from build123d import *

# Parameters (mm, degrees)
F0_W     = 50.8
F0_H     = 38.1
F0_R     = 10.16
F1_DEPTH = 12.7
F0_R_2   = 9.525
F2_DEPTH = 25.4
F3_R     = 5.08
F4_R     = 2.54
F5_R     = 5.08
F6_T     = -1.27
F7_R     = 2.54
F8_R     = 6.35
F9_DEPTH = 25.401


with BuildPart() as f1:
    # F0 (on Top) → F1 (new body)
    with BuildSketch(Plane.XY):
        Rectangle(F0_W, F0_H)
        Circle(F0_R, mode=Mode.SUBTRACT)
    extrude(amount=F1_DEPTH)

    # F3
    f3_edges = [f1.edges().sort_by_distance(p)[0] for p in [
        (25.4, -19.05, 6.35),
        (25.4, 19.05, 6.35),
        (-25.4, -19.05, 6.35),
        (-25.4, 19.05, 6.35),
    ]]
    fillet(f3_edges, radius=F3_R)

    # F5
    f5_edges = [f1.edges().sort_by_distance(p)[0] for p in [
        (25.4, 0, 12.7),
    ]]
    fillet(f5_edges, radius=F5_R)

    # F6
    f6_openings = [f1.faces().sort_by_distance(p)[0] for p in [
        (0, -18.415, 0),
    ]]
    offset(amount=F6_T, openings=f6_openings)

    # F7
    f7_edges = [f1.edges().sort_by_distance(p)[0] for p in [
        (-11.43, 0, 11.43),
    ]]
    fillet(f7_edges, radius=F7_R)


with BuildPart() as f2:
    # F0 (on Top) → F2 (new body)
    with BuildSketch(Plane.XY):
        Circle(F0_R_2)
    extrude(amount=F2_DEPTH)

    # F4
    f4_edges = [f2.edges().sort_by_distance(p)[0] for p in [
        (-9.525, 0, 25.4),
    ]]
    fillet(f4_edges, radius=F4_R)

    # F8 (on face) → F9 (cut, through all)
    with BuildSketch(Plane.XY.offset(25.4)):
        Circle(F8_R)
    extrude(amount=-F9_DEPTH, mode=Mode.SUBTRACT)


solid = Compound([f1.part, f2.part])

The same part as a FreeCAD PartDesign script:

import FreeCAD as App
import Part
import Sketcher

V = App.Vector
Q = App.Units.Quantity


def edges_at(feature, points):
    """Names of the edges that pass closest to the given points."""
    edges = feature.Shape.Edges
    near = lambda p: min(range(len(edges)), key=lambda i: edges[i].distToShape(Part.Vertex(*p))[0])
    return sorted({f"Edge{near(p) + 1}" for p in points})


def faces_at(feature, points):
    """Names of the faces that lie closest to the given points."""
    faces = feature.Shape.Faces
    near = lambda p: min(range(len(faces)), key=lambda i: faces[i].distToShape(Part.Vertex(*p))[0])
    return sorted({f"Face{near(p) + 1}" for p in points})


def add_polygon(sketch, points):
    """Adds a closed chain of lines whose ends are joined by coincident constraints."""
    first, n = sketch.GeometryCount, len(points)
    for a, b in zip(points, points[1:] + points[:1]):
        sketch.addGeometry(Part.LineSegment(App.Vector(*a, 0), App.Vector(*b, 0)), False)
    for i in range(n):
        sketch.addConstraint(Sketcher.Constraint("Coincident", first + i, 2, first + (i + 1) % n, 1))

doc = App.newDocument("Part")
params = doc.addObject("Spreadsheet::Sheet", "Params")
for row, (alias, value) in enumerate([
    ("sketch1_diameter", "0.8 in"),
    ("sketch1_width", "2 in"),
    ("sketch1_height", "1.5 in"),
    ("pad1_length", "0.5 in"),
    ("fillet_radius", "0.2 in"),
    ("fillet2_radius", "0.2 in"),
    ("thickness_wall", "0.05 in"),
    ("fillet3_radius", "0.1 in"),
    ("sketch2_diameter", "0.75 in"),
    ("pad2_length", "1 in"),
    ("fillet4_radius", "0.1 in"),
    ("sketch3_diameter", "0.5 in"),
], start=1):
    params.set(f"A{row}", alias)
    params.set(f"B{row}", "=" + value)
    params.setAlias(f"B{row}", alias)

body = doc.addObject("PartDesign::Body", "Body")

# Sketch on XY plane
sketch1 = body.newObject("Sketcher::SketchObject", "Sketch")
sketch1.AttachmentSupport = (doc.getObject("XY_Plane"), [""])
sketch1.MapMode = "FlatFace"
add_polygon(sketch1, [(-25.4, 19.05), (-25.4, -19.05), (25.4, -19.05), (25.4, 19.05)])  # lines 0-3
sketch1.addGeometry(Part.Circle(V(0, 0, 0), V(0, 0, 1), 10.16), False)  # 4
sketch1.addConstraint([
    Sketcher.Constraint("Vertical", 0),
    Sketcher.Constraint("Horizontal", 1),
    Sketcher.Constraint("Vertical", 2),
    Sketcher.Constraint("Horizontal", 3),
    Sketcher.Constraint("Coincident", 4, 3, -1, 1),
    Sketcher.Constraint("Symmetric", 0, 2, 2, 2, -1, 1),
    Sketcher.Constraint("Diameter", 4, Q("0.8 in")),
    Sketcher.Constraint("DistanceX", 1, 1, 1, 2, Q("2 in")),
    Sketcher.Constraint("DistanceY", 0, 2, 0, 1, Q("1.5 in")),
])
sketch1.setExpression("Constraints[10]", "Params.sketch1_diameter")
sketch1.setExpression("Constraints[11]", "Params.sketch1_width")
sketch1.setExpression("Constraints[12]", "Params.sketch1_height")
pad1 = body.newObject("PartDesign::Pad", "Pad")
pad1.Profile = sketch1
pad1.setExpression("Length", "Params.pad1_length")
doc.recompute()

fillet = body.newObject("PartDesign::Fillet", "Fillet")
fillet.Base = (pad1, edges_at(pad1, [
    (25.4, -19.05, 6.35),
    (25.4, 19.05, 6.35),
    (-25.4, -19.05, 6.35),
    (-25.4, 19.05, 6.35),
]))
fillet.setExpression("Radius", "Params.fillet_radius")
doc.recompute()

fillet2 = body.newObject("PartDesign::Fillet", "Fillet001")
fillet2.Base = (fillet, edges_at(fillet, [(25.4, 0, 12.7)]))
fillet2.setExpression("Radius", "Params.fillet2_radius")
doc.recompute()

thickness = body.newObject("PartDesign::Thickness", "Thickness")
thickness.Base = (fillet2, faces_at(fillet2, [(-10.16, -7.62, 0)]))
thickness.setExpression("Value", "Params.thickness_wall")
thickness.Reversed = True
thickness.Join = "Arc"
doc.recompute()

fillet3 = body.newObject("PartDesign::Fillet", "Fillet002")
fillet3.Base = (thickness, edges_at(thickness, [(-11.43, 0, 11.43)]))
fillet3.setExpression("Radius", "Params.fillet3_radius")
body2 = doc.addObject("PartDesign::Body", "Body001")

# Sketch on XY plane
sketch2 = body2.newObject("Sketcher::SketchObject", "Sketch001")
sketch2.AttachmentSupport = (doc.getObject("XY_Plane001"), [""])
sketch2.MapMode = "FlatFace"
sketch2.addGeometry(Part.Circle(V(0, 0, 0), V(0, 0, 1), 9.525), False)
sketch2.addConstraint([
    Sketcher.Constraint("Coincident", 0, 3, -1, 1),
    Sketcher.Constraint("Diameter", 0, Q("0.75 in")),
])
sketch2.setExpression("Constraints[1]", "Params.sketch2_diameter")
pad2 = body2.newObject("PartDesign::Pad", "Pad001")
pad2.Profile = sketch2
pad2.setExpression("Length", "Params.pad2_length")
doc.recompute()

fillet4 = body2.newObject("PartDesign::Fillet", "Fillet003")
fillet4.Base = (pad2, edges_at(pad2, [(-9.525, 0, 25.4)]))
fillet4.setExpression("Radius", "Params.fillet4_radius")

# Sketch on XY plane
sketch3 = body2.newObject("Sketcher::SketchObject", "Sketch002")
sketch3.AttachmentSupport = (doc.getObject("XY_Plane001"), [""])
sketch3.MapMode = "FlatFace"
sketch3.AttachmentOffset = App.Placement(V(0, 0, 1 * 25.4), App.Rotation())
sketch3.addGeometry(Part.Circle(V(0, 0, 0), V(0, 0, 1), 6.35), False)
sketch3.addConstraint([
    Sketcher.Constraint("Coincident", 0, 3, -1, 1),
    Sketcher.Constraint("Diameter", 0, Q("0.5 in")),
])
sketch3.setExpression("Constraints[1]", "Params.sketch3_diameter")
pocket1 = body2.newObject("PartDesign::Pocket", "Pocket")
pocket1.Profile = sketch3
pocket1.Type = "ThroughAll"

doc.recompute()
